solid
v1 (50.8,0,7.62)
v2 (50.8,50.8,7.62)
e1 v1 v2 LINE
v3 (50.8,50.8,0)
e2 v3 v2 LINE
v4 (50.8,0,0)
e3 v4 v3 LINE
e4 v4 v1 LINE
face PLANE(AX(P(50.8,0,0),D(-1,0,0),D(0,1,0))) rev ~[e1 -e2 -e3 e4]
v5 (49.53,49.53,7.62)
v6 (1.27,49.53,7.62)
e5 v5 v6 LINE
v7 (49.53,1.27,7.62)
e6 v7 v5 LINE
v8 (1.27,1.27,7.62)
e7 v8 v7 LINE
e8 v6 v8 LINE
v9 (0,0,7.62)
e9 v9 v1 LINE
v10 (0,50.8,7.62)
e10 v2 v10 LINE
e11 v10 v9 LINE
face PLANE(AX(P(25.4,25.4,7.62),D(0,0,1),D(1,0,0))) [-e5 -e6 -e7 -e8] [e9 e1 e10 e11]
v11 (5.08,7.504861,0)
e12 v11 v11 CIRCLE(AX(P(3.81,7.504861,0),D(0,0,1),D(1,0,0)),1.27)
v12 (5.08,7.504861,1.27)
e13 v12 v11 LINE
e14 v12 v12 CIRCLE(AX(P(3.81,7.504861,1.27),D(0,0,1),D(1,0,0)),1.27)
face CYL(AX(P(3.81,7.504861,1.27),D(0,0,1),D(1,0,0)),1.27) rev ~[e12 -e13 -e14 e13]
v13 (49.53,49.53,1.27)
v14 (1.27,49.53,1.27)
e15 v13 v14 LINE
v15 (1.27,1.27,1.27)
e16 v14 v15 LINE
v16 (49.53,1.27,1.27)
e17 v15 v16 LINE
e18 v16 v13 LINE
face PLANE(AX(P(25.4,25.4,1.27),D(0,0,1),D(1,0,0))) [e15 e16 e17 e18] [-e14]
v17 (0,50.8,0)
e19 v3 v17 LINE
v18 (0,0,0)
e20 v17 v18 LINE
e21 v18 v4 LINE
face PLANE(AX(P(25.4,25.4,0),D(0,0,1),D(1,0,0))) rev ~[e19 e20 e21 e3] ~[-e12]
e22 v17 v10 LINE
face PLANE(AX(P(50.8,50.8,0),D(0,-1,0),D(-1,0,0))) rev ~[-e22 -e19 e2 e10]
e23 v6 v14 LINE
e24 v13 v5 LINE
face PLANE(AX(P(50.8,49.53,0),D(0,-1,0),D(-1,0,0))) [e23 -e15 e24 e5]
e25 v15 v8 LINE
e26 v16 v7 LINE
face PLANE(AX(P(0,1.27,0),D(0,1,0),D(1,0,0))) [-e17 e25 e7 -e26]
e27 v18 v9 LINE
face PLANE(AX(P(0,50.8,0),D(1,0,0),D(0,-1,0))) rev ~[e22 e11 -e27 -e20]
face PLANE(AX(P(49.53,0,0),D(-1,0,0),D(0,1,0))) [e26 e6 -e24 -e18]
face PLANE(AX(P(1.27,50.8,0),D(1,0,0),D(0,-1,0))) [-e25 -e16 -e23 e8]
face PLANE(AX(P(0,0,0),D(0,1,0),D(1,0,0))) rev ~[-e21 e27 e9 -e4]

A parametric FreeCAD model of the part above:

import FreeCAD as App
import Part
import Sketcher

V = App.Vector
Q = App.Units.Quantity


def faces_at(feature, points):
    """Names of the faces that lie closest to the given points."""
    faces = feature.Shape.Faces
    near = lambda p: min(range(len(faces)), key=lambda i: faces[i].distToShape(Part.Vertex(*p))[0])
    return sorted({f"Face{near(p) + 1}" for p in points})

doc = App.newDocument("Part")
body = doc.addObject("PartDesign::Body", "Body")

sketch1 = body.newObject("Sketcher::SketchObject", "Sketch")
sketch1.AttachmentSupport = (doc.getObject("XY_Plane"), [""])
sketch1.MapMode = "FlatFace"
sketch1.addGeometry([
    Part.LineSegment(V(0, 51, 0), V(0, 0, 0)),
    Part.LineSegment(V(0, 0, 0), V(51, 0, 0)),
    Part.LineSegment(V(51, 0, 0), V(51, 51, 0)),
    Part.LineSegment(V(51, 51, 0), V(0, 51, 0)),
], False)
sketch1.addConstraint([
    Sketcher.Constraint("Coincident", 0, 2, 1, 1),
    Sketcher.Constraint("Coincident", 1, 2, 2, 1),
    Sketcher.Constraint("Coincident", 2, 2, 3, 1),
    Sketcher.Constraint("Coincident", 3, 2, 0, 1),
    Sketcher.Constraint("Vertical", 0),
    Sketcher.Constraint("Horizontal", 1),
    Sketcher.Constraint("Vertical", 2),
    Sketcher.Constraint("Horizontal", 3),
    Sketcher.Constraint("Coincident", 0, 2, -1, 1),
    Sketcher.Constraint("Equal", 3, 0),
    Sketcher.Constraint("DistanceX", 1, 1, 1, 2, Q("2 in")),
])
pad1 = body.newObject("PartDesign::Pad", "Pad")
pad1.Profile = sketch1
pad1.Length = Q("0.3 in")
doc.recompute()

thickness = body.newObject("PartDesign::Thickness", "Thickness")
thickness.Base = (pad1, faces_at(pad1, [(25.4, 25.4, 7.62)]))
thickness.Value = Q("0.05 in")
thickness.Reversed = True
thickness.Join = "Arc"

sketch2 = body.newObject("Sketcher::SketchObject", "Sketch001")
sketch2.AttachmentSupport = (doc.getObject("XY_Plane"), [""])
sketch2.MapMode = "FlatFace"
sketch2.AttachmentOffset = App.Placement(V(0, 0, 0.05 * 25.4), App.Rotation())
sketch2.addGeometry(Part.Circle(V(3.8, 7.5, 0), V(0, 0, 1), 1.3), False)
sketch2.addConstraint([
    Sketcher.Constraint("Diameter", 0, Q("0.1 in")),
    Sketcher.Constraint("DistanceX", -1, 1, 0, 3, Q("0.15 in")),
    Sketcher.Constraint("DistanceY", -1, 1, 0, 3, 7.504861),
])
pocket1 = body.newObject("PartDesign::Pocket", "Pocket")
pocket1.Profile = sketch2
pocket1.Length = Q("1 in")

doc.recompute()
